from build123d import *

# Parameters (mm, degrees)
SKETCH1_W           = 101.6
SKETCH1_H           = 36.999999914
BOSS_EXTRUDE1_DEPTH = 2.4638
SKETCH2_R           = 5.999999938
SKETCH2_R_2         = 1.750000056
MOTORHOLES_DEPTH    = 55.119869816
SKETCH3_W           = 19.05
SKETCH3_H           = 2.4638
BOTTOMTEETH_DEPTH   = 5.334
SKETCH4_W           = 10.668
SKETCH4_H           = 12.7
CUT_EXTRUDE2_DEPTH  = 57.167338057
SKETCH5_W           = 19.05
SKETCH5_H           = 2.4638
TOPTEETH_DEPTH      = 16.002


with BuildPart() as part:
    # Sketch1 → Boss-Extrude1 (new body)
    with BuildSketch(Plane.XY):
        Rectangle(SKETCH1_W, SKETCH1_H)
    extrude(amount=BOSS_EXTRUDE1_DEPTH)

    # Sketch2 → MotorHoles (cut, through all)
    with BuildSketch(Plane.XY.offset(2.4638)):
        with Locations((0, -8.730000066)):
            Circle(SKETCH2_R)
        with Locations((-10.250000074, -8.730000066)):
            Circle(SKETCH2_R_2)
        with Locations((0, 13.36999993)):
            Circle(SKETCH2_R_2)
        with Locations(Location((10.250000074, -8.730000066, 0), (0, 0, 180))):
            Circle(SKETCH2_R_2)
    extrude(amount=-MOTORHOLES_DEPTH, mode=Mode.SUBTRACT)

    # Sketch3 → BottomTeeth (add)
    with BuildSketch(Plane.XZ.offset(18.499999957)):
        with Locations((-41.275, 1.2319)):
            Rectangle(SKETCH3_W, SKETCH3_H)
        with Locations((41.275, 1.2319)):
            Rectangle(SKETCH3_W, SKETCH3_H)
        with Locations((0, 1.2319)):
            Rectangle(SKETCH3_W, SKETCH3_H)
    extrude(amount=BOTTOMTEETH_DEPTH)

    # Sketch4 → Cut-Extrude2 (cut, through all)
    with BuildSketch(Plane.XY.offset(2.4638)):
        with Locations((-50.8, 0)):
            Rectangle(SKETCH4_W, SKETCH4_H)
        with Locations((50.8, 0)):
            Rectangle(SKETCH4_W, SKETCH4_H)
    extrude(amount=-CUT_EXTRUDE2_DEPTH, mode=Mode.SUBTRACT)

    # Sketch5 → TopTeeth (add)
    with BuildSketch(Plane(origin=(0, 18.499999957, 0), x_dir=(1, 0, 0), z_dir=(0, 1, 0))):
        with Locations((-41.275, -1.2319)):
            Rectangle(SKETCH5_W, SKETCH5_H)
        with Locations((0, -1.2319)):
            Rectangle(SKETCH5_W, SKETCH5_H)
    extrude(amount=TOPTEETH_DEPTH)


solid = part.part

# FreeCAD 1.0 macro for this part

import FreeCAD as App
import Part
import Sketcher
from FreeCAD import Vector
Q = App.Units.Quantity

doc = App.newDocument("Part")
body = doc.addObject("PartDesign::Body", "Body")

# Sketch on XY plane
sketch1 = body.newObject("Sketcher::SketchObject", "Sketch")
sketch1.AttachmentSupport = (doc.getObject("XY_Plane"), [""])
sketch1.MapMode = "FlatFace"
sketch1.addGeometry([
    Part.LineSegment(Vector(-51, 18, 0), Vector(-51, -18, 0)),
    Part.LineSegment(Vector(-51, -18, 0), Vector(51, -18, 0)),
    Part.LineSegment(Vector(51, -18, 0), Vector(51, 18, 0)),
    Part.LineSegment(Vector(51, 18, 0), Vector(-51, 18, 0)),
], False)
sketch1.addConstraint([
    Sketcher.Constraint("Coincident", 0, 2, 1, 1),
    Sketcher.Constraint("Coincident", 1, 2, 2, 1),
    Sketcher.Constraint("Coincident", 2, 2, 3, 1),
    Sketcher.Constraint("Coincident", 3, 2, 0, 1),
    Sketcher.Constraint("Vertical", 0),
    Sketcher.Constraint("Horizontal", 1),
    Sketcher.Constraint("Vertical", 2),
    Sketcher.Constraint("Horizontal", 3),
    Sketcher.Constraint("Symmetric", 0, 2, 2, 2, -1, 1),
    Sketcher.Constraint("DistanceX", 1, 1, 1, 2, Q("4 in")),
    Sketcher.Constraint("DistanceY", 0, 2, 0, 1, 37.0),
])
pad1 = body.newObject("PartDesign::Pad", "Pad")
pad1.Profile = sketch1
pad1.Length = Q("0.097 in")

# Sketch on XY plane
sketch2 = body.newObject("Sketcher::SketchObject", "Sketch001")
sketch2.AttachmentSupport = (doc.getObject("XY_Plane"), [""])
sketch2.MapMode = "FlatFace"
sketch2.AttachmentOffset = App.Placement(Vector(0, 0, 0.097 * 25.4), App.Rotation())
sketch2.addGeometry([
    Part.Circle(Vector(0, -8.7, 0), Vector(0, 0, 1), 6),
    Part.Circle(Vector(-10.3, -8.7, 0), Vector(0, 0, 1), 1.8),
    Part.Circle(Vector(0, 13.4, 0), Vector(0, 0, 1), 1.8),
    Part.Circle(Vector(10.3, -8.7, 0), Vector(0, 0, 1), 1.8),
], False)
sketch2.addConstraint([
    Sketcher.Constraint("Equal", 1, 2),
    Sketcher.Constraint("Equal", 2, 3),
    Sketcher.Constraint("Symmetric", 1, 3, 3, 3, -2),
    Sketcher.Constraint("PointOnObject", 0, 3, -2),
    Sketcher.Constraint("PointOnObject", 2, 3, -2),
    Sketcher.Constraint("Horizontal", 0, 3, 1, 3),
    Sketcher.Constraint("Diameter", 0, 12.0),
    Sketcher.Constraint("Diameter", 1, 3.5),
    Sketcher.Constraint("DistanceY", 0, 3, -1, 1, 8.73),
    Sketcher.Constraint("DistanceX", 1, 3, -1, 1, 10.25),
    Sketcher.Constraint("DistanceY", -1, 1, 2, 3, 13.37),
])
pocket1 = body.newObject("PartDesign::Pocket", "Pocket")
pocket1.Profile = sketch2
pocket1.Type = "ThroughAll"

# Sketch on XZ plane
sketch3 = body.newObject("Sketcher::SketchObject", "Sketch002")
sketch3.AttachmentSupport = (doc.getObject("XZ_Plane"), [""])
sketch3.MapMode = "FlatFace"
sketch3.AttachmentOffset = App.Placement(Vector(0, 0, 18.5), App.Rotation())
sketch3.addGeometry([
    Part.LineSegment(Vector(-50.8, 2.5, 0), Vector(-50.8, 0, 0)),  # 0
    Part.LineSegment(Vector(-50.8, 0, 0), Vector(-31.8, 0, 0)),  # 1
    Part.LineSegment(Vector(-31.8, 0, 0), Vector(-31.8, 2.5, 0)),  # 2
    Part.LineSegment(Vector(-31.8, 2.5, 0), Vector(-50.8, 2.5, 0)),  # 3
    Part.LineSegment(Vector(31.8, 2.5, 0), Vector(31.8, 0, 0)),  # 4
    Part.LineSegment(Vector(31.8, 0, 0), Vector(50.8, 0, 0)),  # 5
    Part.LineSegment(Vector(50.8, 0, 0), Vector(50.8, 2.5, 0)),  # 6
    Part.LineSegment(Vector(50.8, 2.5, 0), Vector(31.8, 2.5, 0)),  # 7
    Part.LineSegment(Vector(-9.5, 2.5, 0), Vector(-9.5, 0, 0)),  # 8
    Part.LineSegment(Vector(-9.5, 0, 0), Vector(9.5, 0, 0)),  # 9
    Part.LineSegment(Vector(9.5, 0, 0), Vector(9.5, 2.5, 0)),  # 10
    Part.LineSegment(Vector(9.5, 2.5, 0), Vector(-9.5, 2.5, 0)),  # 11
], False)
sketch3.addConstraint([
    Sketcher.Constraint("Coincident", 0, 2, 1, 1),
    Sketcher.Constraint("Coincident", 1, 2, 2, 1),
    Sketcher.Constraint("Coincident", 2, 2, 3, 1),
    Sketcher.Constraint("Coincident", 3, 2, 0, 1),
    Sketcher.Constraint("Coincident", 4, 2, 5, 1),
    Sketcher.Constraint("Coincident", 5, 2, 6, 1),
    Sketcher.Constraint("Coincident", 6, 2, 7, 1),
    Sketcher.Constraint("Coincident", 7, 2, 4, 1),
    Sketcher.Constraint("Coincident", 8, 2, 9, 1),
    Sketcher.Constraint("Coincident", 9, 2, 10, 1),
    Sketcher.Constraint("Coincident", 10, 2, 11, 1),
    Sketcher.Constraint("Coincident", 11, 2, 8, 1),
    Sketcher.Constraint("Vertical", 0),
    Sketcher.Constraint("Horizontal", 1),
    Sketcher.Constraint("Vertical", 2),
    Sketcher.Constraint("Horizontal", 3),
    Sketcher.Constraint("Vertical", 4),
    Sketcher.Constraint("Horizontal", 5),
    Sketcher.Constraint("Vertical", 6),
    Sketcher.Constraint("Horizontal", 7),
    Sketcher.Constraint("Vertical", 8),
    Sketcher.Constraint("Horizontal", 9),
    Sketcher.Constraint("Vertical", 10),
    Sketcher.Constraint("Horizontal", 11),
    Sketcher.Constraint("Symmetric", 1, 2, 4, 2, -1, 1),
    Sketcher.Constraint("Symmetric", 8, 2, 9, 2, -1, 1),
    Sketcher.Constraint("Symmetric", 0, 2, 5, 2, -2),
    Sketcher.Constraint("Horizontal", 3, 2, 6, 2),
    Sketcher.Constraint("Horizontal", 7, 2, 10, 2),
    Sketcher.Constraint("Equal", 7, 9),
    Sketcher.Constraint("DistanceX", 0, 2, -1, 1, Q("2 in")),
    Sketcher.Constraint("DistanceX", 1, 1, 1, 2, Q("0.75 in")),
    Sketcher.Constraint("DistanceY", 0, 2, 0, 1, Q("0.097 in")),
])
pad2 = body.newObject("PartDesign::Pad", "Pad001")
pad2.Profile = sketch3
pad2.Length = Q("0.21 in")

# Sketch on XY plane
sketch4 = body.newObject("Sketcher::SketchObject", "Sketch003")
sketch4.AttachmentSupport = (doc.getObject("XY_Plane"), [""])
sketch4.MapMode = "FlatFace"
sketch4.AttachmentOffset = App.Placement(Vector(0, 0, 0.097 * 25.4), App.Rotation())
sketch4.addGeometry([
    Part.LineSegment(Vector(-56, 6, 0), Vector(-56, -6, 0)),  # 0
    Part.LineSegment(Vector(-56, -6, 0), Vector(-45, -6, 0)),  # 1
    Part.LineSegment(Vector(-45, -6, 0), Vector(-45, 6, 0)),  # 2
    Part.LineSegment(Vector(-45, 6, 0), Vector(-56, 6, 0)),  # 3
    Part.LineSegment(Vector(45, 6, 0), Vector(45, -6, 0)),  # 4
    Part.LineSegment(Vector(45, -6, 0), Vector(56, -6, 0)),  # 5
    Part.LineSegment(Vector(56, -6, 0), Vector(56, 6, 0)),  # 6
    Part.LineSegment(Vector(56, 6, 0), Vector(45, 6, 0)),  # 7
], False)
sketch4.addConstraint([
    Sketcher.Constraint("Coincident", 0, 2, 1, 1),
    Sketcher.Constraint("Coincident", 1, 2, 2, 1),
    Sketcher.Constraint("Coincident", 2, 2, 3, 1),
    Sketcher.Constraint("Coincident", 3, 2, 0, 1),
    Sketcher.Constraint("Coincident", 4, 2, 5, 1),
    Sketcher.Constraint("Coincident", 5, 2, 6, 1),
    Sketcher.Constraint("Coincident", 6, 2, 7, 1),
    Sketcher.Constraint("Coincident", 7, 2, 4, 1),
    Sketcher.Constraint("Vertical", 0),
    Sketcher.Constraint("Horizontal", 1),
    Sketcher.Constraint("Vertical", 2),
    Sketcher.Constraint("Horizontal", 3),
    Sketcher.Constraint("Vertical", 4),
    Sketcher.Constraint("Horizontal", 5),
    Sketcher.Constraint("Vertical", 6),
    Sketcher.Constraint("Horizontal", 7),
    Sketcher.Constraint("Symmetric", 2, 2, 4, 2, -1, 1),
    Sketcher.Constraint("Symmetric", 0, 2, 6, 2, -1, 1),
    Sketcher.Constraint("Horizontal", 1, 2, 4, 2),
    Sketcher.Constraint("DistanceY", 0, 2, 0, 1, Q("0.5 in")),
    Sketcher.Constraint("DistanceX", 0, 2, 4, 2, Q("4 in")),
    Sketcher.Constraint("DistanceX", 1, 1, 1, 2, Q("0.42 in")),
])
pocket2 = body.newObject("PartDesign::Pocket", "Pocket001")
pocket2.Profile = sketch4
pocket2.Type = "ThroughAll"

# Sketch on XZ plane
sketch5 = body.newObject("Sketcher::SketchObject", "Sketch004")
sketch5.AttachmentSupport = (doc.getObject("XZ_Plane"), [""])
sketch5.MapMode = "FlatFace"
sketch5.AttachmentOffset = App.Placement(Vector(0, 0, -18.5), App.Rotation())
sketch5.addGeometry([
    Part.LineSegment(Vector(-50.8, 0, 0), Vector(-50.8, 2.5, 0)),  # 0
    Part.LineSegment(Vector(-50.8, 2.5, 0), Vector(-31.8, 2.5, 0)),  # 1
    Part.LineSegment(Vector(-31.8, 2.5, 0), Vector(-31.8, 0, 0)),  # 2
    Part.LineSegment(Vector(-31.8, 0, 0), Vector(-50.8, 0, 0)),  # 3
    Part.LineSegment(Vector(-9.5, 0, 0), Vector(-9.5, 2.5, 0)),  # 4
    Part.LineSegment(Vector(-9.5, 2.5, 0), Vector(9.5, 2.5, 0)),  # 5
    Part.LineSegment(Vector(9.5, 2.5, 0), Vector(9.5, 0, 0)),  # 6
    Part.LineSegment(Vector(9.5, 0, 0), Vector(-9.5, 0, 0)),  # 7
], False)
sketch5.addConstraint([
    Sketcher.Constraint("Coincident", 0, 2, 1, 1),
    Sketcher.Constraint("Coincident", 1, 2, 2, 1),
    Sketcher.Constraint("Coincident", 2, 2, 3, 1),
    Sketcher.Constraint("Coincident", 3, 2, 0, 1),
    Sketcher.Constraint("Coincident", 4, 2, 5, 1),
    Sketcher.Constraint("Coincident", 5, 2, 6, 1),
    Sketcher.Constraint("Coincident", 6, 2, 7, 1),
    Sketcher.Constraint("Coincident", 7, 2, 4, 1),
    Sketcher.Constraint("Vertical", 0),
    Sketcher.Constraint("Horizontal", 1),
    Sketcher.Constraint("Vertical", 2),
    Sketcher.Constraint("Horizontal", 3),
    Sketcher.Constraint("Vertical", 4),
    Sketcher.Constraint("Horizontal", 5),
    Sketcher.Constraint("Vertical", 6),
    Sketcher.Constraint("Horizontal", 7),
    Sketcher.Constraint("Symmetric", 6, 2, 7, 2, -1, 1),
    Sketcher.Constraint("PointOnObject", 2, 2, -1),
    Sketcher.Constraint("Horizontal", 1, 2, 4, 2),
    Sketcher.Constraint("Equal", 3, 5),
    Sketcher.Constraint("DistanceX", 0, 2, -1, 1, Q("2 in")),
    Sketcher.Constraint("DistanceX", 1, 1, 1, 2, Q("0.75 in")),
    Sketcher.Constraint("DistanceY", 0, 1, 0, 2, Q("0.097 in")),
])
pad3 = body.newObject("PartDesign::Pad", "Pad002")
pad3.Profile = sketch5
pad3.Length = Q("0.63 in")
pad3.Reversed = True

doc.recompute()
